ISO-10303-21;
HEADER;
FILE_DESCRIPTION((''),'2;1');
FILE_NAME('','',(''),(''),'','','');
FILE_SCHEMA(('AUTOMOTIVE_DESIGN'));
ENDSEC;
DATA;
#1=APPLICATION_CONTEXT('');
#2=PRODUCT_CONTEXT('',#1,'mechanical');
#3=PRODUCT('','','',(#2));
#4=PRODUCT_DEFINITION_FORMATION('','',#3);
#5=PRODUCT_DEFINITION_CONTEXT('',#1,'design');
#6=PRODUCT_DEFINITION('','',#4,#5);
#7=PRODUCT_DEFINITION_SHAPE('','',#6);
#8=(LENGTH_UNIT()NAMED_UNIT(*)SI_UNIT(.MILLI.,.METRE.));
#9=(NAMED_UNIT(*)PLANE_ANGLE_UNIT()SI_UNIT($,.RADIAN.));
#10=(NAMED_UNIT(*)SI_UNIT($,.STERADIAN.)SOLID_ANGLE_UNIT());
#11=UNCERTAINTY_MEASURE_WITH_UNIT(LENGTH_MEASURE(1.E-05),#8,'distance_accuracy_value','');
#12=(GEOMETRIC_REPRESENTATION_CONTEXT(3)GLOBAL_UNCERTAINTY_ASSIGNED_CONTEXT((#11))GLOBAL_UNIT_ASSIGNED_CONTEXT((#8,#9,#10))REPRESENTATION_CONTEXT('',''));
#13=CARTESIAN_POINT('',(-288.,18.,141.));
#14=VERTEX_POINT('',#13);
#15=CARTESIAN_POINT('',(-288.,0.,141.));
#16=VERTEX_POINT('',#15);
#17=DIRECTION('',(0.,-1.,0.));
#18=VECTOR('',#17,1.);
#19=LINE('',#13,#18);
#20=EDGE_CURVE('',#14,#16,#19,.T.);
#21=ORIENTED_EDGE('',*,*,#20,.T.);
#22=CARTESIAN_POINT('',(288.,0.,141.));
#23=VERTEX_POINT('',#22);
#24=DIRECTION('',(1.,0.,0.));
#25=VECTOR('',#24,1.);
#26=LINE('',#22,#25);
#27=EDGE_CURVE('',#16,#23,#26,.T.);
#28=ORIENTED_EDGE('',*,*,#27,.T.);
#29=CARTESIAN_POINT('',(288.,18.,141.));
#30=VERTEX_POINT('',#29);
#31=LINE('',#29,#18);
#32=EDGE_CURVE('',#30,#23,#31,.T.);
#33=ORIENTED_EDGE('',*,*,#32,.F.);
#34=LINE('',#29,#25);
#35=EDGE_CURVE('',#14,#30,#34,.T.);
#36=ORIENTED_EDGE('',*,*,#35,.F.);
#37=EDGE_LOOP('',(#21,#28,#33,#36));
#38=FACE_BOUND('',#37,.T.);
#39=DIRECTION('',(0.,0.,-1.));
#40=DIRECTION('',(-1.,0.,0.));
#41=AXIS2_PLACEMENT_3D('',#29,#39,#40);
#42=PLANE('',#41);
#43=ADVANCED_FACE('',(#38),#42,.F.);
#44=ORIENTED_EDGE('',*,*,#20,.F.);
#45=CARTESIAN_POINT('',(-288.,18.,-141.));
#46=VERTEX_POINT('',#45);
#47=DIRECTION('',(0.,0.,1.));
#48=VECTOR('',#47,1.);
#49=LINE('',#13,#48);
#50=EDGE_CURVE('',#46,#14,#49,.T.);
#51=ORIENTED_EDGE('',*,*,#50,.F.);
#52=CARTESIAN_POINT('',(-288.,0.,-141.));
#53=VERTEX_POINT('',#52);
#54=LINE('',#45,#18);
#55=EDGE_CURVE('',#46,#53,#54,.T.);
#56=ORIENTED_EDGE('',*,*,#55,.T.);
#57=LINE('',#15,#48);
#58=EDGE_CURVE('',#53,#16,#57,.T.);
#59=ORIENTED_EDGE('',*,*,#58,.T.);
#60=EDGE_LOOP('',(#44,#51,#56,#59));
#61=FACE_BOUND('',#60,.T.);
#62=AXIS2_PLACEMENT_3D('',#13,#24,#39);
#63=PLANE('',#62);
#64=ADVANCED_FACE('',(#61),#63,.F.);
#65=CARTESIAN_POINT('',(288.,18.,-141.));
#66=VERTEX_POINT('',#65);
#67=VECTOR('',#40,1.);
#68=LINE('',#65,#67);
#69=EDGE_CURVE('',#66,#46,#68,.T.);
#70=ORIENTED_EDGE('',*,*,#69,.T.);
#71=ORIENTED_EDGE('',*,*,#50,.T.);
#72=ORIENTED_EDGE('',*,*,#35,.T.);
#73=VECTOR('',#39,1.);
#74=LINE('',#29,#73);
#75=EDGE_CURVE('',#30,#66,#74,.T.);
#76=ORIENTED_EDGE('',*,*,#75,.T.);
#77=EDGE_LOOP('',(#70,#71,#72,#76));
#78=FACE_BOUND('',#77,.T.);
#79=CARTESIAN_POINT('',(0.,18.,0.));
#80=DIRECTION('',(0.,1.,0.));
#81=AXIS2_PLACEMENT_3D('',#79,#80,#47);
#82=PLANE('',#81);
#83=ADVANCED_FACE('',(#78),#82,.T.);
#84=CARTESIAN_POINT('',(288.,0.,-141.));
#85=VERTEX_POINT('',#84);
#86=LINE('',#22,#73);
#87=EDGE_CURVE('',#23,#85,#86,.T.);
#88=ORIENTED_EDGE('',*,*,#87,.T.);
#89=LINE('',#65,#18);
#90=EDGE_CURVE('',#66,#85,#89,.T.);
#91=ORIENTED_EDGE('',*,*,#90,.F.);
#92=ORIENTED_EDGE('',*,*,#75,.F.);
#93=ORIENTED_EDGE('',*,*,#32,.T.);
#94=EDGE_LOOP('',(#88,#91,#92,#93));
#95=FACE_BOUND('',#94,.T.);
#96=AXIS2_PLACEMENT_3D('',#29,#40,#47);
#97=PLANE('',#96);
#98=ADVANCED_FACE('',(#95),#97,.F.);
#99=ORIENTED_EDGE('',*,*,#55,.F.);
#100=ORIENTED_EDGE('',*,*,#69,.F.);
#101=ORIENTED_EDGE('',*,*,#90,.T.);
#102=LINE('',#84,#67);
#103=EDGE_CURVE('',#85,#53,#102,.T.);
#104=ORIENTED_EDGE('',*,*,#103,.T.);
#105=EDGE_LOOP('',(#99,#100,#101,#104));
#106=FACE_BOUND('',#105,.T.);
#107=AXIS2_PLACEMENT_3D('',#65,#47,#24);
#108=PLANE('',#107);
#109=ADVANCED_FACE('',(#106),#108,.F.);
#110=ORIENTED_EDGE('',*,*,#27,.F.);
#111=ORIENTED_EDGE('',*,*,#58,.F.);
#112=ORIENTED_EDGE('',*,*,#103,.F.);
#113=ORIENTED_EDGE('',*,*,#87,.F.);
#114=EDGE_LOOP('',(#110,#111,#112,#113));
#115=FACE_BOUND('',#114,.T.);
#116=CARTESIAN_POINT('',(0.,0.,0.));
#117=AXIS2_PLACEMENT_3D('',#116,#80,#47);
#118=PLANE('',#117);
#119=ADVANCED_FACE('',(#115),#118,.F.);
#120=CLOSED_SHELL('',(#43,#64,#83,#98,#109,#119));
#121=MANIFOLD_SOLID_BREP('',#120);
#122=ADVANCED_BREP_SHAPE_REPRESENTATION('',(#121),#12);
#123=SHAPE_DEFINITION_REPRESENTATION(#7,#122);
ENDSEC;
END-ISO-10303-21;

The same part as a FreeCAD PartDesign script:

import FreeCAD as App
import Part
import Sketcher

V = App.Vector

doc = App.newDocument("Part")
body = doc.addObject("PartDesign::Body", "Body")

sketch1 = body.newObject("Sketcher::SketchObject", "Sketch")
sketch1.AttachmentSupport = (doc.getObject("XZ_Plane"), [""])
sketch1.MapMode = "FlatFace"
sketch1.addGeometry([
    Part.LineSegment(V(-288, -141, 0), V(-288, 141, 0)),
    Part.LineSegment(V(-288, 141, 0), V(288, 141, 0)),
    Part.LineSegment(V(288, 141, 0), V(288, -141, 0)),
    Part.LineSegment(V(288, -141, 0), V(-288, -141, 0)),
], False)
sketch1.addConstraint([
    Sketcher.Constraint("Coincident", 0, 2, 1, 1),
    Sketcher.Constraint("Coincident", 1, 2, 2, 1),
    Sketcher.Constraint("Coincident", 2, 2, 3, 1),
    Sketcher.Constraint("Coincident", 3, 2, 0, 1),
    Sketcher.Constraint("Vertical", 0),
    Sketcher.Constraint("Horizontal", 1),
    Sketcher.Constraint("Vertical", 2),
    Sketcher.Constraint("Horizontal", 3),
    Sketcher.Constraint("Symmetric", 0, 2, 2, 2, -1, 1),
    Sketcher.Constraint("DistanceX", 1, 1, 1, 2, 576.0),
    Sketcher.Constraint("DistanceY", 0, 1, 0, 2, 282.0),
])
pad1 = body.newObject("PartDesign::Pad", "Pad")
pad1.Profile = sketch1
pad1.Length = 18
pad1.Reversed = True

doc.recompute()
